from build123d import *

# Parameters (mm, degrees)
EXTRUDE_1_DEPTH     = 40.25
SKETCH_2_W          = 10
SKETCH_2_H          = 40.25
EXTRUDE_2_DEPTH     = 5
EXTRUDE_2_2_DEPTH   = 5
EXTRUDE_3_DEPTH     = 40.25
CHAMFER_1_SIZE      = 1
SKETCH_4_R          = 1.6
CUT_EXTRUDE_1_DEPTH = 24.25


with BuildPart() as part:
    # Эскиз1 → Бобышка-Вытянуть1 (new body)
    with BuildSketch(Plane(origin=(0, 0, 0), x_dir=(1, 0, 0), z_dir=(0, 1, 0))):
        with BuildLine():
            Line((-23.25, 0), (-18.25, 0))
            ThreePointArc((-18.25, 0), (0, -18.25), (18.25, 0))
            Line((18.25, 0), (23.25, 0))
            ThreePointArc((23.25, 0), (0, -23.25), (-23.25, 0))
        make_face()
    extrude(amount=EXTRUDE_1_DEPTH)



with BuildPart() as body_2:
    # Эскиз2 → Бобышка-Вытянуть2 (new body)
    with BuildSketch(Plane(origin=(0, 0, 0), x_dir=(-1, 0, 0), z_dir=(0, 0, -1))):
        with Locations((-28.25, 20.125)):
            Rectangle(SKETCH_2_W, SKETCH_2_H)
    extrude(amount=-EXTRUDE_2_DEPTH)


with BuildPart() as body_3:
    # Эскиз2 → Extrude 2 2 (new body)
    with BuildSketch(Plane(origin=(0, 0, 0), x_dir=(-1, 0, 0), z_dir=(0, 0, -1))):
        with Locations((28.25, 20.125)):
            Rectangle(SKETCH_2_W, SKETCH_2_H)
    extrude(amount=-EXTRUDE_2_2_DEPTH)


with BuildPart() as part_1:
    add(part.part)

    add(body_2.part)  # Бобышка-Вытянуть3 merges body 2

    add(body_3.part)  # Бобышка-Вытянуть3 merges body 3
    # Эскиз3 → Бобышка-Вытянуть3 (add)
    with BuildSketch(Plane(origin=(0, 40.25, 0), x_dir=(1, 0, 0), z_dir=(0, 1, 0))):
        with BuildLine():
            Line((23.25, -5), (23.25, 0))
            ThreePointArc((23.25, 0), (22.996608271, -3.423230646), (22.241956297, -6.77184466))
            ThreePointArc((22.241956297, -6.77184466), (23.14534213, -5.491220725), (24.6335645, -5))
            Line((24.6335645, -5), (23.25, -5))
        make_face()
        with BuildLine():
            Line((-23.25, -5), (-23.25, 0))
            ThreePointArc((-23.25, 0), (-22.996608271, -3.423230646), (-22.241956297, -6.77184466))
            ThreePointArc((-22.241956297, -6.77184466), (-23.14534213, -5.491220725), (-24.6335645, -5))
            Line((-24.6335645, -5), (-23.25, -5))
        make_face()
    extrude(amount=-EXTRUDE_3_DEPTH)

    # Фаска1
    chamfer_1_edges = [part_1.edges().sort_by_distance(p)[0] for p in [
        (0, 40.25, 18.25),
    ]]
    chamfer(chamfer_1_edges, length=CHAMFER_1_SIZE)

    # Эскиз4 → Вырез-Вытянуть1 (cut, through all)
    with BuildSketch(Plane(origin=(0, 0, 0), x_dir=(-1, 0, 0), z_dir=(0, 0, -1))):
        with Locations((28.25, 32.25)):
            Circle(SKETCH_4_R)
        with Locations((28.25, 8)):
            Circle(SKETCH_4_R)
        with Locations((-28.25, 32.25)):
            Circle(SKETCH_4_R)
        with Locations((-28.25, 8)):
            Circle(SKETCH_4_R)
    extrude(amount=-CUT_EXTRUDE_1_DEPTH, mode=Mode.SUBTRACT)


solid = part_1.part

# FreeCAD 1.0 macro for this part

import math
import FreeCAD as App
import Part
import Sketcher


def edges_at(feature, points):
    """Names of the edges that pass closest to the given points."""
    edges = feature.Shape.Edges
    near = lambda p: min(range(len(edges)), key=lambda i: edges[i].distToShape(Part.Vertex(*p))[0])
    return sorted({f"Edge{near(p) + 1}" for p in points})


def add_polygon(sketch, points):
    """Adds a closed chain of lines whose ends are joined by coincident constraints."""
    first, n = sketch.GeometryCount, len(points)
    for a, b in zip(points, points[1:] + points[:1]):
        sketch.addGeometry(Part.LineSegment(App.Vector(*a, 0), App.Vector(*b, 0)), False)
    for i in range(n):
        sketch.addConstraint(Sketcher.Constraint("Coincident", first + i, 2, first + (i + 1) % n, 1))

doc = App.newDocument("Part")
body = doc.addObject("PartDesign::Body", "Body")

# Sketch on XZ plane
sketch1 = doc.addObject("Sketcher::SketchObject", "Sketch")
body.addObject(sketch1)
sketch1.AttachmentSupport = (doc.XZ_Plane, [""])
sketch1.MapMode = "FlatFace"
sketch1.addGeometry([
    Part.LineSegment(App.Vector(-18, 0, 0), App.Vector(-23, 0, 0)),
    Part.ArcOfCircle(Part.Circle(App.Vector(0, 0, 0), App.Vector(0, 0, 1), 23), math.radians(0), math.radians(180)),
    Part.LineSegment(App.Vector(23, 0, 0), App.Vector(18, 0, 0)),
    Part.ArcOfCircle(Part.Circle(App.Vector(0, 0, 0), App.Vector(0, 0, 1), 18), math.radians(0), math.radians(180)),
], False)
sketch1.addConstraint([
    Sketcher.Constraint("Coincident", 0, 2, 1, 2),
    Sketcher.Constraint("Coincident", 1, 1, 2, 1),
    Sketcher.Constraint("Coincident", 2, 2, 3, 1),
    Sketcher.Constraint("Coincident", 3, 2, 0, 1),
    Sketcher.Constraint("Horizontal", 0),
    Sketcher.Constraint("Horizontal", 2),
    Sketcher.Constraint("Coincident", 1, 3, -1, 1),
    Sketcher.Constraint("Coincident", 3, 3, -1, 1),
    Sketcher.Constraint("PointOnObject", 0, 2, -1),
    Sketcher.Constraint("PointOnObject", 1, 1, -1),
    Sketcher.Constraint("DistanceX", 0, 2, 0, 1, 5.0),
    Sketcher.Constraint("Radius", 1, 23.25),
])
pad1 = doc.addObject("PartDesign::Pad", "Pad")
body.addObject(pad1)
pad1.Profile = sketch1
pad1.Length = 40.25
pad1.Reversed = True
body2 = doc.addObject("PartDesign::Body", "Body001")

# Sketch on XY plane
sketch2 = doc.addObject("Sketcher::SketchObject", "Sketch001")
body2.addObject(sketch2)
sketch2.AttachmentSupport = (doc.getObject("XY_Plane001"), [""])
sketch2.MapMode = "FlatFace"
add_polygon(sketch2, [(33, 40), (33, 0), (23, 0), (23, 40)])  # lines 0-3
sketch2.addConstraint([
    Sketcher.Constraint("Vertical", 0),
    Sketcher.Constraint("Horizontal", 1),
    Sketcher.Constraint("Vertical", 2),
    Sketcher.Constraint("Horizontal", 3),
    Sketcher.Constraint("PointOnObject", 0, 2, -1),
    Sketcher.Constraint("DistanceX", 1, 2, 1, 1, 10.0),
    Sketcher.Constraint("DistanceY", 0, 2, 0, 1, 40.25),
    Sketcher.Constraint("DistanceX", -1, 1, 0, 2, 33.25),
])
pad2 = doc.addObject("PartDesign::Pad", "Pad001")
body2.addObject(pad2)
pad2.Profile = sketch2
pad2.Length = 5
body3 = doc.addObject("PartDesign::Body", "Body002")

# Sketch on XY plane
sketch3 = doc.addObject("Sketcher::SketchObject", "Sketch002")
body3.addObject(sketch3)
sketch3.AttachmentSupport = (doc.getObject("XY_Plane002"), [""])
sketch3.MapMode = "FlatFace"
add_polygon(sketch3, [(-23, 40), (-23, 0), (-33, 0), (-33, 40)])  # lines 0-3
sketch3.addConstraint([
    Sketcher.Constraint("Vertical", 0),
    Sketcher.Constraint("Horizontal", 1),
    Sketcher.Constraint("Vertical", 2),
    Sketcher.Constraint("Horizontal", 3),
    Sketcher.Constraint("PointOnObject", 0, 2, -1),
    Sketcher.Constraint("DistanceX", 1, 2, 1, 1, 10.0),
    Sketcher.Constraint("DistanceY", 0, 2, 0, 1, 40.25),
    Sketcher.Constraint("DistanceX", 0, 2, -1, 1, 23.25),
])
pad3 = doc.addObject("PartDesign::Pad", "Pad002")
body3.addObject(pad3)
pad3.Profile = sketch3
pad3.Length = 5
body.AllowCompound = True
doc.recompute()

boolean = doc.addObject("PartDesign::Boolean", "Boolean")
body.addObject(boolean)
boolean.Type = "Fuse"
boolean.addObjects([body2])
doc.recompute()

boolean2 = doc.addObject("PartDesign::Boolean", "Boolean001")
body.addObject(boolean2)
boolean2.Type = "Fuse"
boolean2.addObjects([body3])

# Sketch on XZ plane
sketch4 = doc.addObject("Sketcher::SketchObject", "Sketch003")
body.addObject(sketch4)
sketch4.AttachmentSupport = (doc.XZ_Plane, [""])
sketch4.MapMode = "FlatFace"
sketch4.AttachmentOffset = App.Placement(App.Vector(0, 0, -40.25), App.Rotation())
sketch4.addGeometry([
    Part.LineSegment(App.Vector(23.2, 5, 0), App.Vector(23.2, 0, 0)),  # 0
    Part.ArcOfCircle(Part.Circle(App.Vector(0, 0, 0), App.Vector(0, 0, 1), 23.2), math.radians(0), math.radians(16.93)),  # 1
    Part.ArcOfCircle(Part.Circle(App.Vector(24.6, 7.5, 0), App.Vector(0, 0, 1), 2.5), math.radians(-163), math.radians(-90)),  # 2
    Part.LineSegment(App.Vector(24.6, 5, 0), App.Vector(23.2, 5, 0)),  # 3
    Part.LineSegment(App.Vector(-23.2, 0, 0), App.Vector(-23.2, 5, 0)),  # 4
    Part.LineSegment(App.Vector(-23.2, 5, 0), App.Vector(-24.6, 5, 0)),  # 5
    Part.ArcOfCircle(Part.Circle(App.Vector(-24.6, 7.5, 0), App.Vector(0, 0, 1), 2.5), math.radians(-90), math.radians(-17)),  # 6
    Part.ArcOfCircle(Part.Circle(App.Vector(0, 0, 0), App.Vector(0, 0, 1), 23.2), math.radians(163.07), math.radians(180)),  # 7
], False)
sketch4.addConstraint([
    Sketcher.Constraint("Tangent", 0, 2, 1, 1),
    Sketcher.Constraint("Tangent", 1, 2, 2, 1),
    Sketcher.Constraint("Tangent", 2, 2, 3, 1),
    Sketcher.Constraint("Coincident", 3, 2, 0, 1),
    Sketcher.Constraint("Coincident", 4, 2, 5, 1),
    Sketcher.Constraint("Tangent", 5, 2, 6, 1),
    Sketcher.Constraint("Tangent", 6, 2, 7, 1),
    Sketcher.Constraint("Tangent", 7, 2, 4, 1),
    Sketcher.Constraint("Vertical", 0),
    Sketcher.Constraint("Horizontal", 3),
    Sketcher.Constraint("Vertical", 4),
    Sketcher.Constraint("Horizontal", 5),
    Sketcher.Constraint("Coincident", 1, 3, -1, 1),
    Sketcher.Constraint("Coincident", 7, 3, -1, 1),
    Sketcher.Constraint("Equal", 2, 6),
    Sketcher.Constraint("Equal", 1, 7),
    Sketcher.Constraint("Horizontal", 2, 3, 6, 3),
    Sketcher.Constraint("Radius", 2, 2.5),
    Sketcher.Constraint("DistanceY", 0, 2, 0, 1, 5.0),
    Sketcher.Constraint("Radius", 1, 23.25),
])
pad4 = doc.addObject("PartDesign::Pad", "Pad003")
body.addObject(pad4)
pad4.Profile = sketch4
pad4.Length = 40.25
doc.recompute()

chamfer = doc.addObject("PartDesign::Chamfer", "Chamfer")
body.addObject(chamfer)
chamfer.Base = (pad4, edges_at(pad4, [(0, 40.25, 18.25)]))
chamfer.Size = 1

# Sketch on XY plane
sketch5 = doc.addObject("Sketcher::SketchObject", "Sketch004")
body.addObject(sketch5)
sketch5.AttachmentSupport = (doc.XY_Plane, [""])
sketch5.MapMode = "FlatFace"
sketch5.addGeometry([
    Part.Circle(App.Vector(-28.2, 32.2, 0), App.Vector(0, 0, 1), 1.6),
    Part.Circle(App.Vector(-28.2, 8, 0), App.Vector(0, 0, 1), 1.6),
    Part.Circle(App.Vector(28.2, 32.2, 0), App.Vector(0, 0, 1), 1.6),
    Part.Circle(App.Vector(28.2, 8, 0), App.Vector(0, 0, 1), 1.6),
], False)
sketch5.addConstraint([
    Sketcher.Constraint("Equal", 0, 1),
    Sketcher.Constraint("Equal", 1, 2),
    Sketcher.Constraint("Equal", 2, 3),
    Sketcher.Constraint("Symmetric", 0, 3, 2, 3, -2),
    Sketcher.Constraint("Symmetric", 1, 3, 3, 3, -2),
    Sketcher.Constraint("Vertical", 0, 3, 1, 3),
    Sketcher.Constraint("Diameter", 0, 3.2),
    Sketcher.Constraint("DistanceY", -1, 1, 1, 3, 8.0),
    Sketcher.Constraint("DistanceX", 0, 3, 2, 3, 56.5),
    Sketcher.Constraint("DistanceY", -1, 1, 0, 3, 32.25),
])
pocket1 = doc.addObject("PartDesign::Pocket", "Pocket")
body.addObject(pocket1)
pocket1.Profile = sketch5
pocket1.Type = "ThroughAll"
pocket1.Reversed = True

doc.recompute()
